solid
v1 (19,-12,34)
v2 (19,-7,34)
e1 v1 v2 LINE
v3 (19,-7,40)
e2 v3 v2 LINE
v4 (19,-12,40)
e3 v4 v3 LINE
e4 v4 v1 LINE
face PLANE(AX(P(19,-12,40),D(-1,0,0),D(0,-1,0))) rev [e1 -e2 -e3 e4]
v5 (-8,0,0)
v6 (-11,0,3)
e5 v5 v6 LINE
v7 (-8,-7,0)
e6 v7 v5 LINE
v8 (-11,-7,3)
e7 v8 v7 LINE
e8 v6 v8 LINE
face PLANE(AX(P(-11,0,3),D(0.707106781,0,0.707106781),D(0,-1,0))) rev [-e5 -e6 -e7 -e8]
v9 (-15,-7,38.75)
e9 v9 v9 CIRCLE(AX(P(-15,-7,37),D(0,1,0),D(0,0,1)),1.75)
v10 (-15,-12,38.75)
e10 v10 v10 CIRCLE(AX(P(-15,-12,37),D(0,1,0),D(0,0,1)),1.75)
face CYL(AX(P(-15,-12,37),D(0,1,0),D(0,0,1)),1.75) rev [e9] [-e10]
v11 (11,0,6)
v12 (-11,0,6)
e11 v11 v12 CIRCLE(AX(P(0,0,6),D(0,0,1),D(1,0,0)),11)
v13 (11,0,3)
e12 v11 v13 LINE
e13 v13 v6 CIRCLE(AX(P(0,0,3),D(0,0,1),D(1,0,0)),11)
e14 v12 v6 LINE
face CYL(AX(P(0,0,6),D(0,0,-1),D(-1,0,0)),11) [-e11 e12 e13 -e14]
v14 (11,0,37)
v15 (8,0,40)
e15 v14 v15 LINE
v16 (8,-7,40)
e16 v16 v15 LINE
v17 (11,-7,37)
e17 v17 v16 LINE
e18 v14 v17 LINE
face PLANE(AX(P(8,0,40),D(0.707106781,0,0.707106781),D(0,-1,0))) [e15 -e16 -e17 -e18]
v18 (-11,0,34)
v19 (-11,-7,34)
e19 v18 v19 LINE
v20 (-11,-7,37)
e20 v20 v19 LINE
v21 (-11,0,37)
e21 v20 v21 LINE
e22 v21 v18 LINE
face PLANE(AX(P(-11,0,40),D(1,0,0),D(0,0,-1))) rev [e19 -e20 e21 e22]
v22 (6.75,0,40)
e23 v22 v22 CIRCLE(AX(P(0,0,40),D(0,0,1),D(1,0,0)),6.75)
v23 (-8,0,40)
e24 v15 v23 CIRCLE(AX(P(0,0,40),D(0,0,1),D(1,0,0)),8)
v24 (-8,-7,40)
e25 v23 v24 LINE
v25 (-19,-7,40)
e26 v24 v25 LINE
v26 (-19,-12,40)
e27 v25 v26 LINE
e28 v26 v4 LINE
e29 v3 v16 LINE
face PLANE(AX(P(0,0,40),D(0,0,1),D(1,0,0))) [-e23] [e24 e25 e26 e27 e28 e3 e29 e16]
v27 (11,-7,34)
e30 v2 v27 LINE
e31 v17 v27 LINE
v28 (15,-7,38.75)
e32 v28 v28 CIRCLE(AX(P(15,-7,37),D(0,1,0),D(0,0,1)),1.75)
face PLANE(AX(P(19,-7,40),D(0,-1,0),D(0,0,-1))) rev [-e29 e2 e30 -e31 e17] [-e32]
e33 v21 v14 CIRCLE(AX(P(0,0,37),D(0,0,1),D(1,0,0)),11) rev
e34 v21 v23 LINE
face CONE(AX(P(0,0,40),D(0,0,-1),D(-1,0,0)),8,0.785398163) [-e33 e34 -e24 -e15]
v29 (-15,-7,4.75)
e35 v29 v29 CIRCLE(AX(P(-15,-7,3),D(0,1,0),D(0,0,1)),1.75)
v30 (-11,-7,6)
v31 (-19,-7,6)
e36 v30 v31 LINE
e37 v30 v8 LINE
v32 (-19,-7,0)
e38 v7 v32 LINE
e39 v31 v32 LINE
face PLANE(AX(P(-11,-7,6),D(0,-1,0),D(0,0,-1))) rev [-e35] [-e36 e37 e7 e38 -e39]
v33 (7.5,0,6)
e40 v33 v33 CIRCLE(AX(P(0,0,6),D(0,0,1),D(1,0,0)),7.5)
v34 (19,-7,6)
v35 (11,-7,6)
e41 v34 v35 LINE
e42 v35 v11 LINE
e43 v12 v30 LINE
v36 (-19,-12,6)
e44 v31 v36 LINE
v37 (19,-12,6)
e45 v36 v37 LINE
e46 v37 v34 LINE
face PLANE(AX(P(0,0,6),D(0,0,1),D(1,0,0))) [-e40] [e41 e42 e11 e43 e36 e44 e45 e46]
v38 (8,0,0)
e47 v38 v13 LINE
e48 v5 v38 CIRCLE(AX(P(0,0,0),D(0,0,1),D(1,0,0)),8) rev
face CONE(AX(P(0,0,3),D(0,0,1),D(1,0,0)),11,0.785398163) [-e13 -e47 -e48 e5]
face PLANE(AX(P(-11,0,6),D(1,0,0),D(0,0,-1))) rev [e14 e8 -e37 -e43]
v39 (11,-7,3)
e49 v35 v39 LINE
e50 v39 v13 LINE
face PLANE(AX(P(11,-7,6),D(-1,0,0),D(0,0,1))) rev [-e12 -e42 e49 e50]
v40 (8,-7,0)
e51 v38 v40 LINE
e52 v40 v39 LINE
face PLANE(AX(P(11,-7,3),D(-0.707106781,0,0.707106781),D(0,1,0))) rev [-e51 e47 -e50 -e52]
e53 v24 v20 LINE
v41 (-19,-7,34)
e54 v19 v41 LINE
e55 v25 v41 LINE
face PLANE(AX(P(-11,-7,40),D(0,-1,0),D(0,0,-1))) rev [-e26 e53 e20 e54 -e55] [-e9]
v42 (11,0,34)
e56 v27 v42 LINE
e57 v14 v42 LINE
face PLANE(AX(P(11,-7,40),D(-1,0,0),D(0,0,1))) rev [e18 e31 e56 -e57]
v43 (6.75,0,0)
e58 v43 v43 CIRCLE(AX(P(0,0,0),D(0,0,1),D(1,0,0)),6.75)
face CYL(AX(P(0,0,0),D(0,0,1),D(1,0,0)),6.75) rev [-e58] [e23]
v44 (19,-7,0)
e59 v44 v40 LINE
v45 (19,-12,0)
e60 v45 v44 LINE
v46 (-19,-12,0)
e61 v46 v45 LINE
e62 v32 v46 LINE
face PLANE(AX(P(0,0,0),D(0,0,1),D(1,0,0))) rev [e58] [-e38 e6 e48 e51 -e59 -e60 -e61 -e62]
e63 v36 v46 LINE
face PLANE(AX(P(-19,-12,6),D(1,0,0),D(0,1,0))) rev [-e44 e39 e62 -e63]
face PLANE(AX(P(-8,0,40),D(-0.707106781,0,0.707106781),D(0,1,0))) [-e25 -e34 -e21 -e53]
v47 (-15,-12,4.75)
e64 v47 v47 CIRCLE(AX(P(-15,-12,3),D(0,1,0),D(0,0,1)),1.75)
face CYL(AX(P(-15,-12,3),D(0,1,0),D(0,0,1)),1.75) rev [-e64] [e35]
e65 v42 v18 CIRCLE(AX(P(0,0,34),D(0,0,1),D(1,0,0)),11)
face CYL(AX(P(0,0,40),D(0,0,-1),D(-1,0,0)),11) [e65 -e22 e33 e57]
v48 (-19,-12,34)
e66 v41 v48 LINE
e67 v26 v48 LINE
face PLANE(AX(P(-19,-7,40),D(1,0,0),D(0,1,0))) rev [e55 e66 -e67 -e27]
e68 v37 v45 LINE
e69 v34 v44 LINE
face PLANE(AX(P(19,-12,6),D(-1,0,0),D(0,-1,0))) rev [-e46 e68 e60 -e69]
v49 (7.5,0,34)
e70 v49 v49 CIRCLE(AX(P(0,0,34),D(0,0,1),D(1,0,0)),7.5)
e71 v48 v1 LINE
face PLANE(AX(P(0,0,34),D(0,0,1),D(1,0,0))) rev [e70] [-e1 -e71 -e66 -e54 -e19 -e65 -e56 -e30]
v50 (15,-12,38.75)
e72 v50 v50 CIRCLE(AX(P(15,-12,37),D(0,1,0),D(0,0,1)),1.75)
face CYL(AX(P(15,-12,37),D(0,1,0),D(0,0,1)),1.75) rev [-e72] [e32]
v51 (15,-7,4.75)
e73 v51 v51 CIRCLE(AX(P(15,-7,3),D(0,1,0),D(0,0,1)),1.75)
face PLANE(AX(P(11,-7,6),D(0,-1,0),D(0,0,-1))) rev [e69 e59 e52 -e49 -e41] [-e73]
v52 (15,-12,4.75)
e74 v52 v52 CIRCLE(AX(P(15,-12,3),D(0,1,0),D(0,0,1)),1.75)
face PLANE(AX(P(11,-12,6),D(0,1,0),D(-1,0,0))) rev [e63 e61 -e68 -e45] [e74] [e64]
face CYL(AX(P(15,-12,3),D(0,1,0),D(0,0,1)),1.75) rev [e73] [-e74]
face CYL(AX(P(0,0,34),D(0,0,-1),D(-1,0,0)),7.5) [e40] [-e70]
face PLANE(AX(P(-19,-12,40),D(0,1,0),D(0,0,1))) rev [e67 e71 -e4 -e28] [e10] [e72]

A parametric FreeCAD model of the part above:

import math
import FreeCAD as App
import Part
import Sketcher

V = App.Vector
Q = App.Units.Quantity


def edges_at(feature, points):
    """Names of the edges that pass closest to the given points."""
    edges = feature.Shape.Edges
    near = lambda p: min(range(len(edges)), key=lambda i: edges[i].distToShape(Part.Vertex(*p))[0])
    return sorted({f"Edge{near(p) + 1}" for p in points})

doc = App.newDocument("Part")
body = doc.addObject("PartDesign::Body", "Body")

sketch1 = body.newObject("Sketcher::SketchObject", "Sketch")
sketch1.AttachmentSupport = (doc.getObject("XY_Plane"), [""])
sketch1.MapMode = "FlatFace"
sketch1.addGeometry([
    Part.LineSegment(V(-11, 0, 0), V(-11, -7, 0)),
    Part.LineSegment(V(-11, -7, 0), V(-19, -7, 0)),
    Part.LineSegment(V(-19, -7, 0), V(-19, -12, 0)),
    Part.LineSegment(V(-19, -12, 0), V(19, -12, 0)),
    Part.LineSegment(V(19, -12, 0), V(19, -7, 0)),
    Part.LineSegment(V(19, -7, 0), V(11, -7, 0)),
    Part.LineSegment(V(11, -7, 0), V(11, 0, 0)),
    Part.ArcOfCircle(Part.Circle(V(0, 0, 0), V(0, 0, 1), 11), math.radians(0), math.radians(180)),
], False)
sketch1.addConstraint([
    Sketcher.Constraint("Coincident", 0, 2, 1, 1),
    Sketcher.Constraint("Coincident", 1, 2, 2, 1),
    Sketcher.Constraint("Coincident", 2, 2, 3, 1),
    Sketcher.Constraint("Coincident", 3, 2, 4, 1),
    Sketcher.Constraint("Coincident", 4, 2, 5, 1),
    Sketcher.Constraint("Coincident", 5, 2, 6, 1),
    Sketcher.Constraint("Tangent", 6, 2, 7, 1),
    Sketcher.Constraint("Tangent", 7, 2, 0, 1),
    Sketcher.Constraint("Vertical", 0),
    Sketcher.Constraint("Horizontal", 1),
    Sketcher.Constraint("Vertical", 2),
    Sketcher.Constraint("Horizontal", 3),
    Sketcher.Constraint("Vertical", 4),
    Sketcher.Constraint("Horizontal", 5),
    Sketcher.Constraint("Vertical", 6),
    Sketcher.Constraint("Coincident", 7, 3, -1, 1),
    Sketcher.Constraint("Symmetric", 1, 2, 4, 2, -2),
    Sketcher.Constraint("Radius", 7, Q("11 mm")),
    Sketcher.Constraint("DistanceX", 1, 2, 1, 1, Q("8 mm")),
    Sketcher.Constraint("DistanceY", 0, 2, 0, 1, Q("7 mm")),
    Sketcher.Constraint("DistanceY", 2, 2, 2, 1, Q("5 mm")),
])
pad1 = body.newObject("PartDesign::Pad", "Pad")
pad1.Profile = sketch1
pad1.Length = 6

sketch2 = body.newObject("Sketcher::SketchObject", "Sketch001")
sketch2.AttachmentSupport = (doc.getObject("XY_Plane"), [""])
sketch2.MapMode = "FlatFace"
sketch2.AttachmentOffset = App.Placement(V(0, 0, 6), App.Rotation())
sketch2.addGeometry(Part.Circle(V(0, 0, 0), V(0, 0, 1), 8), False)
sketch2.addConstraint([
    Sketcher.Constraint("Coincident", 0, 3, -1, 1),
    Sketcher.Constraint("Diameter", 0, Q("15 mm")),
])
pad2 = body.newObject("PartDesign::Pad", "Pad001")
pad2.Profile = sketch2
pad2.Length = 28

sketch3 = body.newObject("Sketcher::SketchObject", "Sketch002")
sketch3.AttachmentSupport = (doc.getObject("XY_Plane"), [""])
sketch3.MapMode = "FlatFace"
sketch3.AttachmentOffset = App.Placement(V(0, 0, 34), App.Rotation())
sketch3.addGeometry([
    Part.LineSegment(V(-11, 0, 0), V(-11, -7, 0)),
    Part.LineSegment(V(-11, -7, 0), V(-19, -7, 0)),
    Part.LineSegment(V(-19, -7, 0), V(-19, -12, 0)),
    Part.LineSegment(V(-19, -12, 0), V(19, -12, 0)),
    Part.LineSegment(V(19, -12, 0), V(19, -7, 0)),
    Part.LineSegment(V(19, -7, 0), V(11, -7, 0)),
    Part.LineSegment(V(11, -7, 0), V(11, 0, 0)),
    Part.ArcOfCircle(Part.Circle(V(0, 0, 0), V(0, 0, 1), 11), math.radians(0), math.radians(180)),
], False)
sketch3.addConstraint([
    Sketcher.Constraint("Coincident", 0, 2, 1, 1),
    Sketcher.Constraint("Coincident", 1, 2, 2, 1),
    Sketcher.Constraint("Coincident", 2, 2, 3, 1),
    Sketcher.Constraint("Coincident", 3, 2, 4, 1),
    Sketcher.Constraint("Coincident", 4, 2, 5, 1),
    Sketcher.Constraint("Coincident", 5, 2, 6, 1),
    Sketcher.Constraint("Tangent", 6, 2, 7, 1),
    Sketcher.Constraint("Tangent", 7, 2, 0, 1),
    Sketcher.Constraint("Vertical", 0),
    Sketcher.Constraint("Horizontal", 1),
    Sketcher.Constraint("Vertical", 2),
    Sketcher.Constraint("Horizontal", 3),
    Sketcher.Constraint("Vertical", 4),
    Sketcher.Constraint("Horizontal", 5),
    Sketcher.Constraint("Vertical", 6),
    Sketcher.Constraint("Coincident", 7, 3, -1, 1),
    Sketcher.Constraint("Symmetric", 1, 2, 4, 2, -2),
    Sketcher.Constraint("Radius", 7, Q("11 mm")),
    Sketcher.Constraint("DistanceX", 1, 2, 1, 1, Q("8 mm")),
    Sketcher.Constraint("DistanceY", 0, 2, 0, 1, Q("7 mm")),
    Sketcher.Constraint("DistanceY", 2, 2, 2, 1, Q("5 mm")),
])
pad3 = body.newObject("PartDesign::Pad", "Pad002")
pad3.Profile = sketch3
pad3.Length = 6

sketch4 = body.newObject("Sketcher::SketchObject", "Sketch003")
sketch4.AttachmentSupport = (doc.getObject("XY_Plane"), [""])
sketch4.MapMode = "FlatFace"
sketch4.AttachmentOffset = App.Placement(V(0, 0, 40), App.Rotation())
sketch4.addGeometry(Part.Circle(V(0, 0, 0), V(0, 0, 1), 7), False)
sketch4.addConstraint([
    Sketcher.Constraint("Coincident", 0, 3, -1, 1),
    Sketcher.Constraint("Diameter", 0, Q("13.5 mm")),
])
pocket1 = body.newObject("PartDesign::Pocket", "Pocket")
pocket1.Profile = sketch4
pocket1.Type = "ThroughAll"

sketch5 = body.newObject("Sketcher::SketchObject", "Sketch004")
sketch5.AttachmentSupport = (doc.getObject("XZ_Plane"), [""])
sketch5.MapMode = "FlatFace"
sketch5.AttachmentOffset = App.Placement(V(0, 0, 7), App.Rotation())
sketch5.addGeometry([
    Part.Circle(V(-15, 3, 0), V(0, 0, 1), 1.8),
    Part.Circle(V(15, 3, 0), V(0, 0, 1), 1.8),
    Part.Circle(V(15, 37, 0), V(0, 0, 1), 1.8),
    Part.Circle(V(-15, 37, 0), V(0, 0, 1), 1.8),
], False)
sketch5.addConstraint([
    Sketcher.Constraint("Equal", 0, 1),
    Sketcher.Constraint("Equal", 1, 2),
    Sketcher.Constraint("Equal", 2, 3),
    Sketcher.Constraint("Symmetric", 0, 3, 1, 3, -2),
    Sketcher.Constraint("Symmetric", 2, 3, 3, 3, -2),
    Sketcher.Constraint("Vertical", 1, 3, 2, 3),
    Sketcher.Constraint("Diameter", 0, Q("3.5 mm")),
    Sketcher.Constraint("DistanceX", 0, 3, -1, 1, Q("15 mm")),
    Sketcher.Constraint("DistanceY", -1, 1, 0, 3, Q("3 mm")),
    Sketcher.Constraint("DistanceY", -1, 1, 2, 3, Q("37 mm")),
])
pocket2 = body.newObject("PartDesign::Pocket", "Pocket001")
pocket2.Profile = sketch5
pocket2.Type = "ThroughAll"
pocket2.Reversed = True
doc.recompute()

chamfer = body.newObject("PartDesign::Chamfer", "Chamfer")
chamfer.Base = (pocket2, edges_at(pocket2, [
    (-11, -3.5, 0),
    (0, 11, 0),
    (11, -3.5, 0),
    (11, -3.5, 40),
    (0, 11, 40),
    (-11, -3.5, 40),
]))
chamfer.Size = 3

doc.recompute()
